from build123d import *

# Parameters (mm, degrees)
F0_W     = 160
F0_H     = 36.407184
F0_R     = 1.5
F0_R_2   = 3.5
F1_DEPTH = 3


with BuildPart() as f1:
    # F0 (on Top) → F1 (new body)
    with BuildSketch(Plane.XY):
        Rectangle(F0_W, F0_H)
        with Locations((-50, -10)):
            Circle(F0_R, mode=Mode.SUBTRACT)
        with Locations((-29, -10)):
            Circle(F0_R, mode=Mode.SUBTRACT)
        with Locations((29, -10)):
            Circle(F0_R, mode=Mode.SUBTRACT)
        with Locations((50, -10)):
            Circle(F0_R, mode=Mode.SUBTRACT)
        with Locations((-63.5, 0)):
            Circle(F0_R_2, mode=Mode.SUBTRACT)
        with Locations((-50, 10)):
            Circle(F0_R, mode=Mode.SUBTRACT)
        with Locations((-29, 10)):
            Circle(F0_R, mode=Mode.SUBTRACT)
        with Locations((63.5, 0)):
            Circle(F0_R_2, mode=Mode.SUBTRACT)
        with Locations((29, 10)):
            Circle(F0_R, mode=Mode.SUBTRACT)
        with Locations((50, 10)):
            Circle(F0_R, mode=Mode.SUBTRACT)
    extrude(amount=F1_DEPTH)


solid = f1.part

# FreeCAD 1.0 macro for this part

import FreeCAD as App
import Part
import Sketcher
from FreeCAD import Vector

doc = App.newDocument("Part")
body = doc.addObject("PartDesign::Body", "Body")

sketch1 = body.newObject("Sketcher::SketchObject", "Sketch")
sketch1.AttachmentSupport = (doc.getObject("XY_Plane"), [""])
sketch1.MapMode = "FlatFace"
sketch1.addGeometry([
    Part.LineSegment(Vector(-80, 18.2, 0), Vector(-80, -18.2, 0)),
    Part.LineSegment(Vector(-80, -18.2, 0), Vector(80, -18.2, 0)),
    Part.LineSegment(Vector(80, -18.2, 0), Vector(80, 18.2, 0)),
    Part.LineSegment(Vector(80, 18.2, 0), Vector(-80, 18.2, 0)),
    Part.Circle(Vector(-50, -10, 0), Vector(0, 0, 1), 1.5),
    Part.Circle(Vector(-29, -10, 0), Vector(0, 0, 1), 1.5),
    Part.Circle(Vector(29, -10, 0), Vector(0, 0, 1), 1.5),
    Part.Circle(Vector(50, -10, 0), Vector(0, 0, 1), 1.5),
    Part.Circle(Vector(-63.5, 0, 0), Vector(0, 0, 1), 3.5),
    Part.Circle(Vector(-50, 10, 0), Vector(0, 0, 1), 1.5),
    Part.Circle(Vector(-29, 10, 0), Vector(0, 0, 1), 1.5),
    Part.Circle(Vector(63.5, 0, 0), Vector(0, 0, 1), 3.5),
    Part.Circle(Vector(29, 10, 0), Vector(0, 0, 1), 1.5),
    Part.Circle(Vector(50, 10, 0), Vector(0, 0, 1), 1.5),
], False)
sketch1.addConstraint([
    Sketcher.Constraint("Coincident", 0, 2, 1, 1),
    Sketcher.Constraint("Coincident", 1, 2, 2, 1),
    Sketcher.Constraint("Coincident", 2, 2, 3, 1),
    Sketcher.Constraint("Coincident", 3, 2, 0, 1),
    Sketcher.Constraint("Vertical", 0),
    Sketcher.Constraint("Horizontal", 1),
    Sketcher.Constraint("Vertical", 2),
    Sketcher.Constraint("Horizontal", 3),
    Sketcher.Constraint("Equal", 4, 5),
    Sketcher.Constraint("Equal", 5, 6),
    Sketcher.Constraint("Equal", 6, 7),
    Sketcher.Constraint("Equal", 7, 9),
    Sketcher.Constraint("Equal", 9, 10),
    Sketcher.Constraint("Equal", 8, 11),
    Sketcher.Constraint("Equal", 10, 12),
    Sketcher.Constraint("Equal", 12, 13),
    Sketcher.Constraint("Symmetric", 7, 3, 9, 3, -1, 1),
    Sketcher.Constraint("Symmetric", 6, 3, 10, 3, -1, 1),
    Sketcher.Constraint("Symmetric", 8, 3, 11, 3, -1, 1),
    Sketcher.Constraint("Symmetric", 5, 3, 12, 3, -1, 1),
    Sketcher.Constraint("Symmetric", 4, 3, 13, 3, -1, 1),
    Sketcher.Constraint("Symmetric", 0, 2, 2, 2, -1, 1),
    Sketcher.Constraint("Symmetric", 5, 3, 6, 3, -2),
    Sketcher.Constraint("Symmetric", 4, 3, 7, 3, -2),
    Sketcher.Constraint("PointOnObject", 8, 3, -1),
    Sketcher.Constraint("Horizontal", 4, 3, 5, 3),
    Sketcher.Constraint("Diameter", 4, 3.0),
    Sketcher.Constraint("Diameter", 8, 7.0),
    Sketcher.Constraint("DistanceX", 1, 1, 1, 2, 160.0),
    Sketcher.Constraint("DistanceX", 4, 3, -1, 1, 50.0),
    Sketcher.Constraint("DistanceY", 4, 3, -1, 1, 10.0),
    Sketcher.Constraint("DistanceX", 5, 3, -1, 1, 29.0),
    Sketcher.Constraint("DistanceX", 8, 3, -1, 1, 63.5),
    Sketcher.Constraint("DistanceY", 0, 2, 0, 1, 36.407184),
])
pad1 = body.newObject("PartDesign::Pad", "Pad")
pad1.Profile = sketch1
pad1.Length = 3

doc.recompute()
